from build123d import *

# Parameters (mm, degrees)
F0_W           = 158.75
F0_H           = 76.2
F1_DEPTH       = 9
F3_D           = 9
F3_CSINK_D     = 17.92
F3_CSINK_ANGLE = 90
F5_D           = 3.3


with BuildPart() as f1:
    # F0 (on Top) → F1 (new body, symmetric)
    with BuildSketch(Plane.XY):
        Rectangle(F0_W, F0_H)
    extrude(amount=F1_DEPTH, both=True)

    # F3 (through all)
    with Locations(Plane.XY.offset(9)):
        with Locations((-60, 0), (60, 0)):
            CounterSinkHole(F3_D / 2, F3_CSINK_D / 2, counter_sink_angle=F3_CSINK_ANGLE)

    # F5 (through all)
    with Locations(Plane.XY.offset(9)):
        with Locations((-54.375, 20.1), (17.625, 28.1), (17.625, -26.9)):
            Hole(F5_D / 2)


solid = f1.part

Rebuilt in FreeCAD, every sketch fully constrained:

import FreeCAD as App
import Part
import Sketcher
from FreeCAD import Vector

doc = App.newDocument("Part")
body = doc.addObject("PartDesign::Body", "Body")

# Sketch on XY plane
sketch1 = doc.addObject("Sketcher::SketchObject", "Sketch")
body.addObject(sketch1)
sketch1.AttachmentSupport = (doc.XY_Plane, [""])
sketch1.MapMode = "FlatFace"
sketch1.addGeometry([
    Part.LineSegment(Vector(-79.375, 38.1, 0), Vector(-79.375, -38.1, 0)),
    Part.LineSegment(Vector(-79.375, -38.1, 0), Vector(79.375, -38.1, 0)),
    Part.LineSegment(Vector(79.375, -38.1, 0), Vector(79.375, 38.1, 0)),
    Part.LineSegment(Vector(79.375, 38.1, 0), Vector(-79.375, 38.1, 0)),
], False)
sketch1.addConstraint([
    Sketcher.Constraint("Coincident", 0, 2, 1, 1),
    Sketcher.Constraint("Coincident", 1, 2, 2, 1),
    Sketcher.Constraint("Coincident", 2, 2, 3, 1),
    Sketcher.Constraint("Coincident", 3, 2, 0, 1),
    Sketcher.Constraint("Vertical", 0),
    Sketcher.Constraint("Horizontal", 1),
    Sketcher.Constraint("Vertical", 2),
    Sketcher.Constraint("Horizontal", 3),
    Sketcher.Constraint("Symmetric", 0, 2, 2, 2, -1, 1),
    Sketcher.Constraint("DistanceY", 0, 2, 0, 1, 76.2),
    Sketcher.Constraint("DistanceX", 1, 1, 1, 2, 158.75),
])
pad1 = doc.addObject("PartDesign::Pad", "Pad")
body.addObject(pad1)
pad1.Profile = sketch1
pad1.Length = 18
pad1.Midplane = True

# Sketch on XY plane
sketch2 = doc.addObject("Sketcher::SketchObject", "Sketch001")
body.addObject(sketch2)
sketch2.AttachmentSupport = (doc.XY_Plane, [""])
sketch2.MapMode = "FlatFace"
sketch2.AttachmentOffset = App.Placement(Vector(0, 0, 9), App.Rotation())
sketch2.addGeometry([
    Part.Circle(Vector(-60, 0, 0), Vector(0, 0, 1), 4.5),
    Part.Circle(Vector(60, 0, 0), Vector(0, 0, 1), 4.5),
], False)
sketch2.addConstraint([
    Sketcher.Constraint("Equal", 0, 1),
    Sketcher.Constraint("Symmetric", 0, 3, 1, 3, -1, 1),
    Sketcher.Constraint("PointOnObject", 0, 3, -1),
    Sketcher.Constraint("Diameter", 0, 9.0),
    Sketcher.Constraint("DistanceX", 0, 3, -1, 1, 60.0),
])
doc.recompute()
hole = doc.addObject("PartDesign::Hole", "Hole")
body.addObject(hole)
hole.Profile = sketch2
hole.ThreadType = "None"
hole.Diameter = 9
hole.DepthType = "ThroughAll"
hole.HoleCutType = "Countersink"
hole.HoleCutDiameter = 17.92
hole.HoleCutCountersinkAngle = 90

# Sketch on XY plane
sketch3 = doc.addObject("Sketcher::SketchObject", "Sketch002")
body.addObject(sketch3)
sketch3.AttachmentSupport = (doc.XY_Plane, [""])
sketch3.MapMode = "FlatFace"
sketch3.AttachmentOffset = App.Placement(Vector(0, 0, 9), App.Rotation())
sketch3.addGeometry([
    Part.Circle(Vector(-54.375, 20.1, 0), Vector(0, 0, 1), 1.65),
    Part.Circle(Vector(17.625, 28.1, 0), Vector(0, 0, 1), 1.65),
    Part.Circle(Vector(17.625, -26.9, 0), Vector(0, 0, 1), 1.65),
], False)
sketch3.addConstraint([
    Sketcher.Constraint("Equal", 0, 1),
    Sketcher.Constraint("Equal", 1, 2),
    Sketcher.Constraint("Vertical", 1, 3, 2, 3),
    Sketcher.Constraint("Diameter", 0, 3.3),
    Sketcher.Constraint("DistanceX", 0, 3, 1, 3, 72.0),
    Sketcher.Constraint("DistanceY", 0, 3, 1, 3, 8.0),
    Sketcher.Constraint("DistanceY", 2, 3, 1, 3, 55.0),
    Sketcher.Constraint("DistanceY", -1, 1, 0, 3, 20.1),
    Sketcher.Constraint("DistanceX", 0, 3, -1, 1, 54.375),
])
doc.recompute()
hole2 = doc.addObject("PartDesign::Hole", "Hole001")
body.addObject(hole2)
hole2.Profile = sketch3
hole2.ThreadType = "None"
hole2.Diameter = 3.3
hole2.DepthType = "ThroughAll"

doc.recompute()
